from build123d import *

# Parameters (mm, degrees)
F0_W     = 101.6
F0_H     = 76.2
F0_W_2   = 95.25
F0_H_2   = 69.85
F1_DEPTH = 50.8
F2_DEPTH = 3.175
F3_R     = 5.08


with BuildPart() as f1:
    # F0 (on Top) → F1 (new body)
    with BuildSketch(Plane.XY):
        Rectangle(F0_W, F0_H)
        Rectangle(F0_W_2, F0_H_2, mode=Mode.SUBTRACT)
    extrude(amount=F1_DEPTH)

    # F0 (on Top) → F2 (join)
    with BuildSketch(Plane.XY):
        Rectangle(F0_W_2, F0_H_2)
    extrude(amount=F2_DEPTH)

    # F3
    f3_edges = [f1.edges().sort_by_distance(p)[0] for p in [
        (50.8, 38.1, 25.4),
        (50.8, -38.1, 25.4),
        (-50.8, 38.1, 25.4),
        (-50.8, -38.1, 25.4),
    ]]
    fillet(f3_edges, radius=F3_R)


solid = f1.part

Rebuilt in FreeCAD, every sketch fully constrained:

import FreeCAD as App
import Part
import Sketcher

V = App.Vector
Q = App.Units.Quantity


def edges_at(feature, points):
    """Names of the edges that pass closest to the given points."""
    edges = feature.Shape.Edges
    near = lambda p: min(range(len(edges)), key=lambda i: edges[i].distToShape(Part.Vertex(*p))[0])
    return sorted({f"Edge{near(p) + 1}" for p in points})


def add_polygon(sketch, points):
    """Adds a closed chain of lines whose ends are joined by coincident constraints."""
    first, n = sketch.GeometryCount, len(points)
    for a, b in zip(points, points[1:] + points[:1]):
        sketch.addGeometry(Part.LineSegment(App.Vector(*a, 0), App.Vector(*b, 0)), False)
    for i in range(n):
        sketch.addConstraint(Sketcher.Constraint("Coincident", first + i, 2, first + (i + 1) % n, 1))

doc = App.newDocument("Part")
params = doc.addObject("Spreadsheet::Sheet", "Params")
for row, (alias, value) in enumerate([
    ("sketch1_width", "4 in"),
    ("sketch1_height", "3 in"),
    ("sketch1_width2", "3.75 in"),
    ("sketch1_height2", "2.75 in"),
    ("pad1_length", "2 in"),
    ("sketch2_width", "3.75 in"),
    ("sketch2_height", "2.75 in"),
    ("pad2_length", "0.125 in"),
    ("fillet_radius", "0.2 in"),
], start=1):
    params.set(f"A{row}", alias)
    params.set(f"B{row}", "=" + value)
    params.setAlias(f"B{row}", alias)

body = doc.addObject("PartDesign::Body", "Body")

# Sketch on XY plane
sketch1 = body.newObject("Sketcher::SketchObject", "Sketch")
sketch1.AttachmentSupport = (doc.getObject("XY_Plane"), [""])
sketch1.MapMode = "FlatFace"
add_polygon(sketch1, [(-51, 38), (-51, -38), (51, -38), (51, 38)])  # lines 0-3
add_polygon(sketch1, [(48, -35), (-48, -35), (-48, 35), (48, 35)])  # lines 4-7
sketch1.addConstraint([
    Sketcher.Constraint("Vertical", 0),
    Sketcher.Constraint("Horizontal", 1),
    Sketcher.Constraint("Vertical", 2),
    Sketcher.Constraint("Horizontal", 3),
    Sketcher.Constraint("Horizontal", 4),
    Sketcher.Constraint("Vertical", 5),
    Sketcher.Constraint("Horizontal", 6),
    Sketcher.Constraint("Vertical", 7),
    Sketcher.Constraint("Symmetric", 0, 2, 2, 2, -1, 1),
    Sketcher.Constraint("Symmetric", 4, 2, 6, 2, -1, 1),
    Sketcher.Constraint("DistanceX", 1, 1, 1, 2, Q("4 in")),
    Sketcher.Constraint("DistanceY", 0, 2, 0, 1, Q("3 in")),
    Sketcher.Constraint("DistanceX", 4, 2, 4, 1, Q("3.75 in")),
    Sketcher.Constraint("DistanceY", 5, 1, 5, 2, Q("2.75 in")),
])
sketch1.setExpression("Constraints[18]", "Params.sketch1_width")
sketch1.setExpression("Constraints[19]", "Params.sketch1_height")
sketch1.setExpression("Constraints[20]", "Params.sketch1_width2")
sketch1.setExpression("Constraints[21]", "Params.sketch1_height2")
pad1 = body.newObject("PartDesign::Pad", "Pad")
pad1.Profile = sketch1
pad1.setExpression("Length", "Params.pad1_length")

# Sketch on XY plane
sketch2 = body.newObject("Sketcher::SketchObject", "Sketch001")
sketch2.AttachmentSupport = (doc.getObject("XY_Plane"), [""])
sketch2.MapMode = "FlatFace"
add_polygon(sketch2, [(-48, 35), (-48, -35), (48, -35), (48, 35)])  # lines 0-3
sketch2.addConstraint([
    Sketcher.Constraint("Vertical", 0),
    Sketcher.Constraint("Horizontal", 1),
    Sketcher.Constraint("Vertical", 2),
    Sketcher.Constraint("Horizontal", 3),
    Sketcher.Constraint("Symmetric", 0, 2, 2, 2, -1, 1),
    Sketcher.Constraint("DistanceX", 1, 1, 1, 2, Q("3.75 in")),
    Sketcher.Constraint("DistanceY", 0, 2, 0, 1, Q("2.75 in")),
])
sketch2.setExpression("Constraints[9]", "Params.sketch2_width")
sketch2.setExpression("Constraints[10]", "Params.sketch2_height")
pad2 = body.newObject("PartDesign::Pad", "Pad001")
pad2.Profile = sketch2
pad2.setExpression("Length", "Params.pad2_length")
doc.recompute()

fillet = body.newObject("PartDesign::Fillet", "Fillet")
fillet.Base = (pad2, edges_at(pad2, [
    (50.8, 38.1, 25.4),
    (50.8, -38.1, 25.4),
    (-50.8, 38.1, 25.4),
    (-50.8, -38.1, 25.4),
]))
fillet.setExpression("Radius", "Params.fillet_radius")

doc.recompute()
